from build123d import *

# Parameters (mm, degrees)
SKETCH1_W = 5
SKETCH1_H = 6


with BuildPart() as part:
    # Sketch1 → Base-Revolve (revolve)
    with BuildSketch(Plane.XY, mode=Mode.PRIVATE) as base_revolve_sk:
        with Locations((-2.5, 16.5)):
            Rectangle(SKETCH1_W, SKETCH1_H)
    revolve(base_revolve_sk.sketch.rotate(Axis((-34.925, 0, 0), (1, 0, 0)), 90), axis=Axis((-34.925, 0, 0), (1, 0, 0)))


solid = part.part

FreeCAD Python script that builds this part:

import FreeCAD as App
import Part
import Sketcher

doc = App.newDocument("Part")
params = doc.addObject("Spreadsheet::Sheet", "Params")
for row, (alias, value) in enumerate([
    ("sketch1_width", "5 mm"),
    ("sketch1_height", "6 mm"),
    ("revolution_angle", "360 deg"),
], start=1):
    params.set(f"A{row}", alias)
    params.set(f"B{row}", "=" + value)
    params.setAlias(f"B{row}", alias)

body = doc.addObject("PartDesign::Body", "Body")

# Sketch on XY plane
sketch1 = doc.addObject("Sketcher::SketchObject", "Sketch")
body.addObject(sketch1)
sketch1.AttachmentSupport = (doc.XY_Plane, [""])
sketch1.MapMode = "FlatFace"
sketch1.addGeometry([
    Part.LineSegment(App.Vector(-5, 19.5, 0), App.Vector(-5, 13.5, 0)),
    Part.LineSegment(App.Vector(-5, 13.5, 0), App.Vector(0, 13.5, 0)),
    Part.LineSegment(App.Vector(0, 13.5, 0), App.Vector(0, 19.5, 0)),
    Part.LineSegment(App.Vector(0, 19.5, 0), App.Vector(-5, 19.5, 0)),
], False)
sketch1.addConstraint([
    Sketcher.Constraint("Coincident", 0, 2, 1, 1),
    Sketcher.Constraint("Coincident", 1, 2, 2, 1),
    Sketcher.Constraint("Coincident", 2, 2, 3, 1),
    Sketcher.Constraint("Coincident", 3, 2, 0, 1),
    Sketcher.Constraint("Vertical", 0),
    Sketcher.Constraint("Horizontal", 1),
    Sketcher.Constraint("Vertical", 2),
    Sketcher.Constraint("Horizontal", 3),
    Sketcher.Constraint("PointOnObject", 1, 2, -2),
    Sketcher.Constraint("DistanceX", 1, 1, 1, 2, 5.0),
    Sketcher.Constraint("DistanceY", 0, 2, 0, 1, 6.0),
    Sketcher.Constraint("DistanceY", -1, 1, 0, 2, 13.5),
])
sketch1.setExpression("Constraints[9]", "Params.sketch1_width")
sketch1.setExpression("Constraints[10]", "Params.sketch1_height")
revolution = doc.addObject("PartDesign::Revolution", "Revolution")
body.addObject(revolution)
revolution.Profile = sketch1
revolution.ReferenceAxis = (sketch1, ["H_Axis"])
revolution.setExpression("Angle", "Params.revolution_angle")

doc.recompute()
